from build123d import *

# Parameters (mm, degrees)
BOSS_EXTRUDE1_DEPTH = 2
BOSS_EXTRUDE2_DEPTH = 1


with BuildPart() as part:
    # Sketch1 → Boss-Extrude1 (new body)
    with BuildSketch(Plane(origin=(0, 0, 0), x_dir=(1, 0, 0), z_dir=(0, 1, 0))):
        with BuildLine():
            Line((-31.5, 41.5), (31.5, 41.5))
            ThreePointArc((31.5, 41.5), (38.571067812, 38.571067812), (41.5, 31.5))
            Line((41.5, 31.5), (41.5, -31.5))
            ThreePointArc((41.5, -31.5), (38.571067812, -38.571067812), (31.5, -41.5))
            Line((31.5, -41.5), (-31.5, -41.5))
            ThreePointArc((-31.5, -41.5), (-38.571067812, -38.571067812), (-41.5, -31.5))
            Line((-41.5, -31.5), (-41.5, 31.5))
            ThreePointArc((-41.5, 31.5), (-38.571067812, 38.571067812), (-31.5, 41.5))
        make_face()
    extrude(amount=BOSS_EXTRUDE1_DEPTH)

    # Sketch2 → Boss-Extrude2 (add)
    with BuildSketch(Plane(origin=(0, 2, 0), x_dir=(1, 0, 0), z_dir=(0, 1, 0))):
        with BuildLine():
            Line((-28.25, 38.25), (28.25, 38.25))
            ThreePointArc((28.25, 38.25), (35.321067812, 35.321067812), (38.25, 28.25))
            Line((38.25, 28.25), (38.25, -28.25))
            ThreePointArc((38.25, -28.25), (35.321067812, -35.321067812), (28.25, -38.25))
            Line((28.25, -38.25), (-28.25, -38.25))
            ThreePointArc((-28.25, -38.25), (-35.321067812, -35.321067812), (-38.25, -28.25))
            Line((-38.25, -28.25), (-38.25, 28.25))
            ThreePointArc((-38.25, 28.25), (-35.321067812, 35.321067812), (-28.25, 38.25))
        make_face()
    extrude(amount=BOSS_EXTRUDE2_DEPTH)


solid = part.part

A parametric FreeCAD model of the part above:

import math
import FreeCAD as App
import Part
import Sketcher
from FreeCAD import Vector

doc = App.newDocument("Part")
body = doc.addObject("PartDesign::Body", "Body")

# Sketch on XZ plane
sketch1 = doc.addObject("Sketcher::SketchObject", "Sketch")
body.addObject(sketch1)
sketch1.AttachmentSupport = (doc.XZ_Plane, [""])
sketch1.MapMode = "FlatFace"
sketch1.addGeometry(Part.LineSegment(Vector(32, -42, 0), Vector(-32, -42, 0)), False)
sketch1.addGeometry(Part.ArcOfCircle(Part.Circle(Vector(-32, -32, 0), Vector(0, 0, 1), 10), math.radians(180), math.radians(270)), False)
sketch1.addGeometry(Part.LineSegment(Vector(-42, -32, 0), Vector(-42, 32, 0)), False)
sketch1.addGeometry(Part.ArcOfCircle(Part.Circle(Vector(-32, 32, 0), Vector(0, 0, 1), 10), math.radians(90), math.radians(180)), False)
sketch1.addGeometry(Part.LineSegment(Vector(-32, 42, 0), Vector(32, 42, 0)), False)
sketch1.addGeometry(Part.ArcOfCircle(Part.Circle(Vector(32, 32, 0), Vector(0, 0, 1), 10), math.radians(0), math.radians(90)), False)
sketch1.addGeometry(Part.LineSegment(Vector(42, 32, 0), Vector(42, -32, 0)), False)
sketch1.addGeometry(Part.ArcOfCircle(Part.Circle(Vector(32, -32, 0), Vector(0, 0, 1), 10), math.radians(-90), math.radians(0)), False)
sketch1.addConstraint(Sketcher.Constraint("Tangent", 0, 2, 1, 2))
sketch1.addConstraint(Sketcher.Constraint("Tangent", 1, 1, 2, 1))
sketch1.addConstraint(Sketcher.Constraint("Tangent", 2, 2, 3, 2))
sketch1.addConstraint(Sketcher.Constraint("Tangent", 3, 1, 4, 1))
sketch1.addConstraint(Sketcher.Constraint("Tangent", 4, 2, 5, 2))
sketch1.addConstraint(Sketcher.Constraint("Tangent", 5, 1, 6, 1))
sketch1.addConstraint(Sketcher.Constraint("Tangent", 6, 2, 7, 2))
sketch1.addConstraint(Sketcher.Constraint("Tangent", 7, 1, 0, 1))
sketch1.addConstraint(Sketcher.Constraint("Horizontal", 0))
sketch1.addConstraint(Sketcher.Constraint("Vertical", 2))
sketch1.addConstraint(Sketcher.Constraint("Horizontal", 4))
sketch1.addConstraint(Sketcher.Constraint("Vertical", 6))
sketch1.addConstraint(Sketcher.Constraint("Equal", 1, 3))
sketch1.addConstraint(Sketcher.Constraint("Equal", 3, 5))
sketch1.addConstraint(Sketcher.Constraint("Equal", 5, 7))
sketch1.addConstraint(Sketcher.Constraint("Symmetric", 1, 3, 5, 3, -1, 1))
sketch1.addConstraint(Sketcher.Constraint("Equal", 4, 2))
sketch1.addConstraint(Sketcher.Constraint("Radius", 1, 10.0))
sketch1.addConstraint(Sketcher.Constraint("DistanceX", 0, 2, 0, 1, 63.0))
pad1 = doc.addObject("PartDesign::Pad", "Pad")
body.addObject(pad1)
pad1.Profile = sketch1
pad1.Length = 2
pad1.Reversed = True

# Sketch on XZ plane
sketch2 = doc.addObject("Sketcher::SketchObject", "Sketch001")
body.addObject(sketch2)
sketch2.AttachmentSupport = (doc.XZ_Plane, [""])
sketch2.MapMode = "FlatFace"
sketch2.AttachmentOffset = App.Placement(Vector(0, 0, -2), App.Rotation())
sketch2.addGeometry(Part.LineSegment(Vector(28, -38, 0), Vector(-28, -38, 0)), False)
sketch2.addGeometry(Part.ArcOfCircle(Part.Circle(Vector(-28, -28, 0), Vector(0, 0, 1), 10), math.radians(180), math.radians(270)), False)
sketch2.addGeometry(Part.LineSegment(Vector(-38, -28, 0), Vector(-38, 28, 0)), False)
sketch2.addGeometry(Part.ArcOfCircle(Part.Circle(Vector(-28, 28, 0), Vector(0, 0, 1), 10), math.radians(90), math.radians(180)), False)
sketch2.addGeometry(Part.LineSegment(Vector(-28, 38, 0), Vector(28, 38, 0)), False)
sketch2.addGeometry(Part.ArcOfCircle(Part.Circle(Vector(28, 28, 0), Vector(0, 0, 1), 10), math.radians(0), math.radians(90)), False)
sketch2.addGeometry(Part.LineSegment(Vector(38, 28, 0), Vector(38, -28, 0)), False)
sketch2.addGeometry(Part.ArcOfCircle(Part.Circle(Vector(28, -28, 0), Vector(0, 0, 1), 10), math.radians(-90), math.radians(0)), False)
sketch2.addConstraint(Sketcher.Constraint("Tangent", 0, 2, 1, 2))
sketch2.addConstraint(Sketcher.Constraint("Tangent", 1, 1, 2, 1))
sketch2.addConstraint(Sketcher.Constraint("Tangent", 2, 2, 3, 2))
sketch2.addConstraint(Sketcher.Constraint("Tangent", 3, 1, 4, 1))
sketch2.addConstraint(Sketcher.Constraint("Tangent", 4, 2, 5, 2))
sketch2.addConstraint(Sketcher.Constraint("Tangent", 5, 1, 6, 1))
sketch2.addConstraint(Sketcher.Constraint("Tangent", 6, 2, 7, 2))
sketch2.addConstraint(Sketcher.Constraint("Tangent", 7, 1, 0, 1))
sketch2.addConstraint(Sketcher.Constraint("Horizontal", 0))
sketch2.addConstraint(Sketcher.Constraint("Vertical", 2))
sketch2.addConstraint(Sketcher.Constraint("Horizontal", 4))
sketch2.addConstraint(Sketcher.Constraint("Vertical", 6))
sketch2.addConstraint(Sketcher.Constraint("Equal", 1, 3))
sketch2.addConstraint(Sketcher.Constraint("Equal", 3, 5))
sketch2.addConstraint(Sketcher.Constraint("Equal", 5, 7))
sketch2.addConstraint(Sketcher.Constraint("Symmetric", 1, 3, 5, 3, -1, 1))
sketch2.addConstraint(Sketcher.Constraint("Equal", 4, 2))
sketch2.addConstraint(Sketcher.Constraint("Radius", 1, 10.0))
sketch2.addConstraint(Sketcher.Constraint("DistanceX", 0, 2, 0, 1, 56.5))
pad2 = doc.addObject("PartDesign::Pad", "Pad001")
body.addObject(pad2)
pad2.Profile = sketch2
pad2.Length = 1
pad2.Reversed = True

doc.recompute()
